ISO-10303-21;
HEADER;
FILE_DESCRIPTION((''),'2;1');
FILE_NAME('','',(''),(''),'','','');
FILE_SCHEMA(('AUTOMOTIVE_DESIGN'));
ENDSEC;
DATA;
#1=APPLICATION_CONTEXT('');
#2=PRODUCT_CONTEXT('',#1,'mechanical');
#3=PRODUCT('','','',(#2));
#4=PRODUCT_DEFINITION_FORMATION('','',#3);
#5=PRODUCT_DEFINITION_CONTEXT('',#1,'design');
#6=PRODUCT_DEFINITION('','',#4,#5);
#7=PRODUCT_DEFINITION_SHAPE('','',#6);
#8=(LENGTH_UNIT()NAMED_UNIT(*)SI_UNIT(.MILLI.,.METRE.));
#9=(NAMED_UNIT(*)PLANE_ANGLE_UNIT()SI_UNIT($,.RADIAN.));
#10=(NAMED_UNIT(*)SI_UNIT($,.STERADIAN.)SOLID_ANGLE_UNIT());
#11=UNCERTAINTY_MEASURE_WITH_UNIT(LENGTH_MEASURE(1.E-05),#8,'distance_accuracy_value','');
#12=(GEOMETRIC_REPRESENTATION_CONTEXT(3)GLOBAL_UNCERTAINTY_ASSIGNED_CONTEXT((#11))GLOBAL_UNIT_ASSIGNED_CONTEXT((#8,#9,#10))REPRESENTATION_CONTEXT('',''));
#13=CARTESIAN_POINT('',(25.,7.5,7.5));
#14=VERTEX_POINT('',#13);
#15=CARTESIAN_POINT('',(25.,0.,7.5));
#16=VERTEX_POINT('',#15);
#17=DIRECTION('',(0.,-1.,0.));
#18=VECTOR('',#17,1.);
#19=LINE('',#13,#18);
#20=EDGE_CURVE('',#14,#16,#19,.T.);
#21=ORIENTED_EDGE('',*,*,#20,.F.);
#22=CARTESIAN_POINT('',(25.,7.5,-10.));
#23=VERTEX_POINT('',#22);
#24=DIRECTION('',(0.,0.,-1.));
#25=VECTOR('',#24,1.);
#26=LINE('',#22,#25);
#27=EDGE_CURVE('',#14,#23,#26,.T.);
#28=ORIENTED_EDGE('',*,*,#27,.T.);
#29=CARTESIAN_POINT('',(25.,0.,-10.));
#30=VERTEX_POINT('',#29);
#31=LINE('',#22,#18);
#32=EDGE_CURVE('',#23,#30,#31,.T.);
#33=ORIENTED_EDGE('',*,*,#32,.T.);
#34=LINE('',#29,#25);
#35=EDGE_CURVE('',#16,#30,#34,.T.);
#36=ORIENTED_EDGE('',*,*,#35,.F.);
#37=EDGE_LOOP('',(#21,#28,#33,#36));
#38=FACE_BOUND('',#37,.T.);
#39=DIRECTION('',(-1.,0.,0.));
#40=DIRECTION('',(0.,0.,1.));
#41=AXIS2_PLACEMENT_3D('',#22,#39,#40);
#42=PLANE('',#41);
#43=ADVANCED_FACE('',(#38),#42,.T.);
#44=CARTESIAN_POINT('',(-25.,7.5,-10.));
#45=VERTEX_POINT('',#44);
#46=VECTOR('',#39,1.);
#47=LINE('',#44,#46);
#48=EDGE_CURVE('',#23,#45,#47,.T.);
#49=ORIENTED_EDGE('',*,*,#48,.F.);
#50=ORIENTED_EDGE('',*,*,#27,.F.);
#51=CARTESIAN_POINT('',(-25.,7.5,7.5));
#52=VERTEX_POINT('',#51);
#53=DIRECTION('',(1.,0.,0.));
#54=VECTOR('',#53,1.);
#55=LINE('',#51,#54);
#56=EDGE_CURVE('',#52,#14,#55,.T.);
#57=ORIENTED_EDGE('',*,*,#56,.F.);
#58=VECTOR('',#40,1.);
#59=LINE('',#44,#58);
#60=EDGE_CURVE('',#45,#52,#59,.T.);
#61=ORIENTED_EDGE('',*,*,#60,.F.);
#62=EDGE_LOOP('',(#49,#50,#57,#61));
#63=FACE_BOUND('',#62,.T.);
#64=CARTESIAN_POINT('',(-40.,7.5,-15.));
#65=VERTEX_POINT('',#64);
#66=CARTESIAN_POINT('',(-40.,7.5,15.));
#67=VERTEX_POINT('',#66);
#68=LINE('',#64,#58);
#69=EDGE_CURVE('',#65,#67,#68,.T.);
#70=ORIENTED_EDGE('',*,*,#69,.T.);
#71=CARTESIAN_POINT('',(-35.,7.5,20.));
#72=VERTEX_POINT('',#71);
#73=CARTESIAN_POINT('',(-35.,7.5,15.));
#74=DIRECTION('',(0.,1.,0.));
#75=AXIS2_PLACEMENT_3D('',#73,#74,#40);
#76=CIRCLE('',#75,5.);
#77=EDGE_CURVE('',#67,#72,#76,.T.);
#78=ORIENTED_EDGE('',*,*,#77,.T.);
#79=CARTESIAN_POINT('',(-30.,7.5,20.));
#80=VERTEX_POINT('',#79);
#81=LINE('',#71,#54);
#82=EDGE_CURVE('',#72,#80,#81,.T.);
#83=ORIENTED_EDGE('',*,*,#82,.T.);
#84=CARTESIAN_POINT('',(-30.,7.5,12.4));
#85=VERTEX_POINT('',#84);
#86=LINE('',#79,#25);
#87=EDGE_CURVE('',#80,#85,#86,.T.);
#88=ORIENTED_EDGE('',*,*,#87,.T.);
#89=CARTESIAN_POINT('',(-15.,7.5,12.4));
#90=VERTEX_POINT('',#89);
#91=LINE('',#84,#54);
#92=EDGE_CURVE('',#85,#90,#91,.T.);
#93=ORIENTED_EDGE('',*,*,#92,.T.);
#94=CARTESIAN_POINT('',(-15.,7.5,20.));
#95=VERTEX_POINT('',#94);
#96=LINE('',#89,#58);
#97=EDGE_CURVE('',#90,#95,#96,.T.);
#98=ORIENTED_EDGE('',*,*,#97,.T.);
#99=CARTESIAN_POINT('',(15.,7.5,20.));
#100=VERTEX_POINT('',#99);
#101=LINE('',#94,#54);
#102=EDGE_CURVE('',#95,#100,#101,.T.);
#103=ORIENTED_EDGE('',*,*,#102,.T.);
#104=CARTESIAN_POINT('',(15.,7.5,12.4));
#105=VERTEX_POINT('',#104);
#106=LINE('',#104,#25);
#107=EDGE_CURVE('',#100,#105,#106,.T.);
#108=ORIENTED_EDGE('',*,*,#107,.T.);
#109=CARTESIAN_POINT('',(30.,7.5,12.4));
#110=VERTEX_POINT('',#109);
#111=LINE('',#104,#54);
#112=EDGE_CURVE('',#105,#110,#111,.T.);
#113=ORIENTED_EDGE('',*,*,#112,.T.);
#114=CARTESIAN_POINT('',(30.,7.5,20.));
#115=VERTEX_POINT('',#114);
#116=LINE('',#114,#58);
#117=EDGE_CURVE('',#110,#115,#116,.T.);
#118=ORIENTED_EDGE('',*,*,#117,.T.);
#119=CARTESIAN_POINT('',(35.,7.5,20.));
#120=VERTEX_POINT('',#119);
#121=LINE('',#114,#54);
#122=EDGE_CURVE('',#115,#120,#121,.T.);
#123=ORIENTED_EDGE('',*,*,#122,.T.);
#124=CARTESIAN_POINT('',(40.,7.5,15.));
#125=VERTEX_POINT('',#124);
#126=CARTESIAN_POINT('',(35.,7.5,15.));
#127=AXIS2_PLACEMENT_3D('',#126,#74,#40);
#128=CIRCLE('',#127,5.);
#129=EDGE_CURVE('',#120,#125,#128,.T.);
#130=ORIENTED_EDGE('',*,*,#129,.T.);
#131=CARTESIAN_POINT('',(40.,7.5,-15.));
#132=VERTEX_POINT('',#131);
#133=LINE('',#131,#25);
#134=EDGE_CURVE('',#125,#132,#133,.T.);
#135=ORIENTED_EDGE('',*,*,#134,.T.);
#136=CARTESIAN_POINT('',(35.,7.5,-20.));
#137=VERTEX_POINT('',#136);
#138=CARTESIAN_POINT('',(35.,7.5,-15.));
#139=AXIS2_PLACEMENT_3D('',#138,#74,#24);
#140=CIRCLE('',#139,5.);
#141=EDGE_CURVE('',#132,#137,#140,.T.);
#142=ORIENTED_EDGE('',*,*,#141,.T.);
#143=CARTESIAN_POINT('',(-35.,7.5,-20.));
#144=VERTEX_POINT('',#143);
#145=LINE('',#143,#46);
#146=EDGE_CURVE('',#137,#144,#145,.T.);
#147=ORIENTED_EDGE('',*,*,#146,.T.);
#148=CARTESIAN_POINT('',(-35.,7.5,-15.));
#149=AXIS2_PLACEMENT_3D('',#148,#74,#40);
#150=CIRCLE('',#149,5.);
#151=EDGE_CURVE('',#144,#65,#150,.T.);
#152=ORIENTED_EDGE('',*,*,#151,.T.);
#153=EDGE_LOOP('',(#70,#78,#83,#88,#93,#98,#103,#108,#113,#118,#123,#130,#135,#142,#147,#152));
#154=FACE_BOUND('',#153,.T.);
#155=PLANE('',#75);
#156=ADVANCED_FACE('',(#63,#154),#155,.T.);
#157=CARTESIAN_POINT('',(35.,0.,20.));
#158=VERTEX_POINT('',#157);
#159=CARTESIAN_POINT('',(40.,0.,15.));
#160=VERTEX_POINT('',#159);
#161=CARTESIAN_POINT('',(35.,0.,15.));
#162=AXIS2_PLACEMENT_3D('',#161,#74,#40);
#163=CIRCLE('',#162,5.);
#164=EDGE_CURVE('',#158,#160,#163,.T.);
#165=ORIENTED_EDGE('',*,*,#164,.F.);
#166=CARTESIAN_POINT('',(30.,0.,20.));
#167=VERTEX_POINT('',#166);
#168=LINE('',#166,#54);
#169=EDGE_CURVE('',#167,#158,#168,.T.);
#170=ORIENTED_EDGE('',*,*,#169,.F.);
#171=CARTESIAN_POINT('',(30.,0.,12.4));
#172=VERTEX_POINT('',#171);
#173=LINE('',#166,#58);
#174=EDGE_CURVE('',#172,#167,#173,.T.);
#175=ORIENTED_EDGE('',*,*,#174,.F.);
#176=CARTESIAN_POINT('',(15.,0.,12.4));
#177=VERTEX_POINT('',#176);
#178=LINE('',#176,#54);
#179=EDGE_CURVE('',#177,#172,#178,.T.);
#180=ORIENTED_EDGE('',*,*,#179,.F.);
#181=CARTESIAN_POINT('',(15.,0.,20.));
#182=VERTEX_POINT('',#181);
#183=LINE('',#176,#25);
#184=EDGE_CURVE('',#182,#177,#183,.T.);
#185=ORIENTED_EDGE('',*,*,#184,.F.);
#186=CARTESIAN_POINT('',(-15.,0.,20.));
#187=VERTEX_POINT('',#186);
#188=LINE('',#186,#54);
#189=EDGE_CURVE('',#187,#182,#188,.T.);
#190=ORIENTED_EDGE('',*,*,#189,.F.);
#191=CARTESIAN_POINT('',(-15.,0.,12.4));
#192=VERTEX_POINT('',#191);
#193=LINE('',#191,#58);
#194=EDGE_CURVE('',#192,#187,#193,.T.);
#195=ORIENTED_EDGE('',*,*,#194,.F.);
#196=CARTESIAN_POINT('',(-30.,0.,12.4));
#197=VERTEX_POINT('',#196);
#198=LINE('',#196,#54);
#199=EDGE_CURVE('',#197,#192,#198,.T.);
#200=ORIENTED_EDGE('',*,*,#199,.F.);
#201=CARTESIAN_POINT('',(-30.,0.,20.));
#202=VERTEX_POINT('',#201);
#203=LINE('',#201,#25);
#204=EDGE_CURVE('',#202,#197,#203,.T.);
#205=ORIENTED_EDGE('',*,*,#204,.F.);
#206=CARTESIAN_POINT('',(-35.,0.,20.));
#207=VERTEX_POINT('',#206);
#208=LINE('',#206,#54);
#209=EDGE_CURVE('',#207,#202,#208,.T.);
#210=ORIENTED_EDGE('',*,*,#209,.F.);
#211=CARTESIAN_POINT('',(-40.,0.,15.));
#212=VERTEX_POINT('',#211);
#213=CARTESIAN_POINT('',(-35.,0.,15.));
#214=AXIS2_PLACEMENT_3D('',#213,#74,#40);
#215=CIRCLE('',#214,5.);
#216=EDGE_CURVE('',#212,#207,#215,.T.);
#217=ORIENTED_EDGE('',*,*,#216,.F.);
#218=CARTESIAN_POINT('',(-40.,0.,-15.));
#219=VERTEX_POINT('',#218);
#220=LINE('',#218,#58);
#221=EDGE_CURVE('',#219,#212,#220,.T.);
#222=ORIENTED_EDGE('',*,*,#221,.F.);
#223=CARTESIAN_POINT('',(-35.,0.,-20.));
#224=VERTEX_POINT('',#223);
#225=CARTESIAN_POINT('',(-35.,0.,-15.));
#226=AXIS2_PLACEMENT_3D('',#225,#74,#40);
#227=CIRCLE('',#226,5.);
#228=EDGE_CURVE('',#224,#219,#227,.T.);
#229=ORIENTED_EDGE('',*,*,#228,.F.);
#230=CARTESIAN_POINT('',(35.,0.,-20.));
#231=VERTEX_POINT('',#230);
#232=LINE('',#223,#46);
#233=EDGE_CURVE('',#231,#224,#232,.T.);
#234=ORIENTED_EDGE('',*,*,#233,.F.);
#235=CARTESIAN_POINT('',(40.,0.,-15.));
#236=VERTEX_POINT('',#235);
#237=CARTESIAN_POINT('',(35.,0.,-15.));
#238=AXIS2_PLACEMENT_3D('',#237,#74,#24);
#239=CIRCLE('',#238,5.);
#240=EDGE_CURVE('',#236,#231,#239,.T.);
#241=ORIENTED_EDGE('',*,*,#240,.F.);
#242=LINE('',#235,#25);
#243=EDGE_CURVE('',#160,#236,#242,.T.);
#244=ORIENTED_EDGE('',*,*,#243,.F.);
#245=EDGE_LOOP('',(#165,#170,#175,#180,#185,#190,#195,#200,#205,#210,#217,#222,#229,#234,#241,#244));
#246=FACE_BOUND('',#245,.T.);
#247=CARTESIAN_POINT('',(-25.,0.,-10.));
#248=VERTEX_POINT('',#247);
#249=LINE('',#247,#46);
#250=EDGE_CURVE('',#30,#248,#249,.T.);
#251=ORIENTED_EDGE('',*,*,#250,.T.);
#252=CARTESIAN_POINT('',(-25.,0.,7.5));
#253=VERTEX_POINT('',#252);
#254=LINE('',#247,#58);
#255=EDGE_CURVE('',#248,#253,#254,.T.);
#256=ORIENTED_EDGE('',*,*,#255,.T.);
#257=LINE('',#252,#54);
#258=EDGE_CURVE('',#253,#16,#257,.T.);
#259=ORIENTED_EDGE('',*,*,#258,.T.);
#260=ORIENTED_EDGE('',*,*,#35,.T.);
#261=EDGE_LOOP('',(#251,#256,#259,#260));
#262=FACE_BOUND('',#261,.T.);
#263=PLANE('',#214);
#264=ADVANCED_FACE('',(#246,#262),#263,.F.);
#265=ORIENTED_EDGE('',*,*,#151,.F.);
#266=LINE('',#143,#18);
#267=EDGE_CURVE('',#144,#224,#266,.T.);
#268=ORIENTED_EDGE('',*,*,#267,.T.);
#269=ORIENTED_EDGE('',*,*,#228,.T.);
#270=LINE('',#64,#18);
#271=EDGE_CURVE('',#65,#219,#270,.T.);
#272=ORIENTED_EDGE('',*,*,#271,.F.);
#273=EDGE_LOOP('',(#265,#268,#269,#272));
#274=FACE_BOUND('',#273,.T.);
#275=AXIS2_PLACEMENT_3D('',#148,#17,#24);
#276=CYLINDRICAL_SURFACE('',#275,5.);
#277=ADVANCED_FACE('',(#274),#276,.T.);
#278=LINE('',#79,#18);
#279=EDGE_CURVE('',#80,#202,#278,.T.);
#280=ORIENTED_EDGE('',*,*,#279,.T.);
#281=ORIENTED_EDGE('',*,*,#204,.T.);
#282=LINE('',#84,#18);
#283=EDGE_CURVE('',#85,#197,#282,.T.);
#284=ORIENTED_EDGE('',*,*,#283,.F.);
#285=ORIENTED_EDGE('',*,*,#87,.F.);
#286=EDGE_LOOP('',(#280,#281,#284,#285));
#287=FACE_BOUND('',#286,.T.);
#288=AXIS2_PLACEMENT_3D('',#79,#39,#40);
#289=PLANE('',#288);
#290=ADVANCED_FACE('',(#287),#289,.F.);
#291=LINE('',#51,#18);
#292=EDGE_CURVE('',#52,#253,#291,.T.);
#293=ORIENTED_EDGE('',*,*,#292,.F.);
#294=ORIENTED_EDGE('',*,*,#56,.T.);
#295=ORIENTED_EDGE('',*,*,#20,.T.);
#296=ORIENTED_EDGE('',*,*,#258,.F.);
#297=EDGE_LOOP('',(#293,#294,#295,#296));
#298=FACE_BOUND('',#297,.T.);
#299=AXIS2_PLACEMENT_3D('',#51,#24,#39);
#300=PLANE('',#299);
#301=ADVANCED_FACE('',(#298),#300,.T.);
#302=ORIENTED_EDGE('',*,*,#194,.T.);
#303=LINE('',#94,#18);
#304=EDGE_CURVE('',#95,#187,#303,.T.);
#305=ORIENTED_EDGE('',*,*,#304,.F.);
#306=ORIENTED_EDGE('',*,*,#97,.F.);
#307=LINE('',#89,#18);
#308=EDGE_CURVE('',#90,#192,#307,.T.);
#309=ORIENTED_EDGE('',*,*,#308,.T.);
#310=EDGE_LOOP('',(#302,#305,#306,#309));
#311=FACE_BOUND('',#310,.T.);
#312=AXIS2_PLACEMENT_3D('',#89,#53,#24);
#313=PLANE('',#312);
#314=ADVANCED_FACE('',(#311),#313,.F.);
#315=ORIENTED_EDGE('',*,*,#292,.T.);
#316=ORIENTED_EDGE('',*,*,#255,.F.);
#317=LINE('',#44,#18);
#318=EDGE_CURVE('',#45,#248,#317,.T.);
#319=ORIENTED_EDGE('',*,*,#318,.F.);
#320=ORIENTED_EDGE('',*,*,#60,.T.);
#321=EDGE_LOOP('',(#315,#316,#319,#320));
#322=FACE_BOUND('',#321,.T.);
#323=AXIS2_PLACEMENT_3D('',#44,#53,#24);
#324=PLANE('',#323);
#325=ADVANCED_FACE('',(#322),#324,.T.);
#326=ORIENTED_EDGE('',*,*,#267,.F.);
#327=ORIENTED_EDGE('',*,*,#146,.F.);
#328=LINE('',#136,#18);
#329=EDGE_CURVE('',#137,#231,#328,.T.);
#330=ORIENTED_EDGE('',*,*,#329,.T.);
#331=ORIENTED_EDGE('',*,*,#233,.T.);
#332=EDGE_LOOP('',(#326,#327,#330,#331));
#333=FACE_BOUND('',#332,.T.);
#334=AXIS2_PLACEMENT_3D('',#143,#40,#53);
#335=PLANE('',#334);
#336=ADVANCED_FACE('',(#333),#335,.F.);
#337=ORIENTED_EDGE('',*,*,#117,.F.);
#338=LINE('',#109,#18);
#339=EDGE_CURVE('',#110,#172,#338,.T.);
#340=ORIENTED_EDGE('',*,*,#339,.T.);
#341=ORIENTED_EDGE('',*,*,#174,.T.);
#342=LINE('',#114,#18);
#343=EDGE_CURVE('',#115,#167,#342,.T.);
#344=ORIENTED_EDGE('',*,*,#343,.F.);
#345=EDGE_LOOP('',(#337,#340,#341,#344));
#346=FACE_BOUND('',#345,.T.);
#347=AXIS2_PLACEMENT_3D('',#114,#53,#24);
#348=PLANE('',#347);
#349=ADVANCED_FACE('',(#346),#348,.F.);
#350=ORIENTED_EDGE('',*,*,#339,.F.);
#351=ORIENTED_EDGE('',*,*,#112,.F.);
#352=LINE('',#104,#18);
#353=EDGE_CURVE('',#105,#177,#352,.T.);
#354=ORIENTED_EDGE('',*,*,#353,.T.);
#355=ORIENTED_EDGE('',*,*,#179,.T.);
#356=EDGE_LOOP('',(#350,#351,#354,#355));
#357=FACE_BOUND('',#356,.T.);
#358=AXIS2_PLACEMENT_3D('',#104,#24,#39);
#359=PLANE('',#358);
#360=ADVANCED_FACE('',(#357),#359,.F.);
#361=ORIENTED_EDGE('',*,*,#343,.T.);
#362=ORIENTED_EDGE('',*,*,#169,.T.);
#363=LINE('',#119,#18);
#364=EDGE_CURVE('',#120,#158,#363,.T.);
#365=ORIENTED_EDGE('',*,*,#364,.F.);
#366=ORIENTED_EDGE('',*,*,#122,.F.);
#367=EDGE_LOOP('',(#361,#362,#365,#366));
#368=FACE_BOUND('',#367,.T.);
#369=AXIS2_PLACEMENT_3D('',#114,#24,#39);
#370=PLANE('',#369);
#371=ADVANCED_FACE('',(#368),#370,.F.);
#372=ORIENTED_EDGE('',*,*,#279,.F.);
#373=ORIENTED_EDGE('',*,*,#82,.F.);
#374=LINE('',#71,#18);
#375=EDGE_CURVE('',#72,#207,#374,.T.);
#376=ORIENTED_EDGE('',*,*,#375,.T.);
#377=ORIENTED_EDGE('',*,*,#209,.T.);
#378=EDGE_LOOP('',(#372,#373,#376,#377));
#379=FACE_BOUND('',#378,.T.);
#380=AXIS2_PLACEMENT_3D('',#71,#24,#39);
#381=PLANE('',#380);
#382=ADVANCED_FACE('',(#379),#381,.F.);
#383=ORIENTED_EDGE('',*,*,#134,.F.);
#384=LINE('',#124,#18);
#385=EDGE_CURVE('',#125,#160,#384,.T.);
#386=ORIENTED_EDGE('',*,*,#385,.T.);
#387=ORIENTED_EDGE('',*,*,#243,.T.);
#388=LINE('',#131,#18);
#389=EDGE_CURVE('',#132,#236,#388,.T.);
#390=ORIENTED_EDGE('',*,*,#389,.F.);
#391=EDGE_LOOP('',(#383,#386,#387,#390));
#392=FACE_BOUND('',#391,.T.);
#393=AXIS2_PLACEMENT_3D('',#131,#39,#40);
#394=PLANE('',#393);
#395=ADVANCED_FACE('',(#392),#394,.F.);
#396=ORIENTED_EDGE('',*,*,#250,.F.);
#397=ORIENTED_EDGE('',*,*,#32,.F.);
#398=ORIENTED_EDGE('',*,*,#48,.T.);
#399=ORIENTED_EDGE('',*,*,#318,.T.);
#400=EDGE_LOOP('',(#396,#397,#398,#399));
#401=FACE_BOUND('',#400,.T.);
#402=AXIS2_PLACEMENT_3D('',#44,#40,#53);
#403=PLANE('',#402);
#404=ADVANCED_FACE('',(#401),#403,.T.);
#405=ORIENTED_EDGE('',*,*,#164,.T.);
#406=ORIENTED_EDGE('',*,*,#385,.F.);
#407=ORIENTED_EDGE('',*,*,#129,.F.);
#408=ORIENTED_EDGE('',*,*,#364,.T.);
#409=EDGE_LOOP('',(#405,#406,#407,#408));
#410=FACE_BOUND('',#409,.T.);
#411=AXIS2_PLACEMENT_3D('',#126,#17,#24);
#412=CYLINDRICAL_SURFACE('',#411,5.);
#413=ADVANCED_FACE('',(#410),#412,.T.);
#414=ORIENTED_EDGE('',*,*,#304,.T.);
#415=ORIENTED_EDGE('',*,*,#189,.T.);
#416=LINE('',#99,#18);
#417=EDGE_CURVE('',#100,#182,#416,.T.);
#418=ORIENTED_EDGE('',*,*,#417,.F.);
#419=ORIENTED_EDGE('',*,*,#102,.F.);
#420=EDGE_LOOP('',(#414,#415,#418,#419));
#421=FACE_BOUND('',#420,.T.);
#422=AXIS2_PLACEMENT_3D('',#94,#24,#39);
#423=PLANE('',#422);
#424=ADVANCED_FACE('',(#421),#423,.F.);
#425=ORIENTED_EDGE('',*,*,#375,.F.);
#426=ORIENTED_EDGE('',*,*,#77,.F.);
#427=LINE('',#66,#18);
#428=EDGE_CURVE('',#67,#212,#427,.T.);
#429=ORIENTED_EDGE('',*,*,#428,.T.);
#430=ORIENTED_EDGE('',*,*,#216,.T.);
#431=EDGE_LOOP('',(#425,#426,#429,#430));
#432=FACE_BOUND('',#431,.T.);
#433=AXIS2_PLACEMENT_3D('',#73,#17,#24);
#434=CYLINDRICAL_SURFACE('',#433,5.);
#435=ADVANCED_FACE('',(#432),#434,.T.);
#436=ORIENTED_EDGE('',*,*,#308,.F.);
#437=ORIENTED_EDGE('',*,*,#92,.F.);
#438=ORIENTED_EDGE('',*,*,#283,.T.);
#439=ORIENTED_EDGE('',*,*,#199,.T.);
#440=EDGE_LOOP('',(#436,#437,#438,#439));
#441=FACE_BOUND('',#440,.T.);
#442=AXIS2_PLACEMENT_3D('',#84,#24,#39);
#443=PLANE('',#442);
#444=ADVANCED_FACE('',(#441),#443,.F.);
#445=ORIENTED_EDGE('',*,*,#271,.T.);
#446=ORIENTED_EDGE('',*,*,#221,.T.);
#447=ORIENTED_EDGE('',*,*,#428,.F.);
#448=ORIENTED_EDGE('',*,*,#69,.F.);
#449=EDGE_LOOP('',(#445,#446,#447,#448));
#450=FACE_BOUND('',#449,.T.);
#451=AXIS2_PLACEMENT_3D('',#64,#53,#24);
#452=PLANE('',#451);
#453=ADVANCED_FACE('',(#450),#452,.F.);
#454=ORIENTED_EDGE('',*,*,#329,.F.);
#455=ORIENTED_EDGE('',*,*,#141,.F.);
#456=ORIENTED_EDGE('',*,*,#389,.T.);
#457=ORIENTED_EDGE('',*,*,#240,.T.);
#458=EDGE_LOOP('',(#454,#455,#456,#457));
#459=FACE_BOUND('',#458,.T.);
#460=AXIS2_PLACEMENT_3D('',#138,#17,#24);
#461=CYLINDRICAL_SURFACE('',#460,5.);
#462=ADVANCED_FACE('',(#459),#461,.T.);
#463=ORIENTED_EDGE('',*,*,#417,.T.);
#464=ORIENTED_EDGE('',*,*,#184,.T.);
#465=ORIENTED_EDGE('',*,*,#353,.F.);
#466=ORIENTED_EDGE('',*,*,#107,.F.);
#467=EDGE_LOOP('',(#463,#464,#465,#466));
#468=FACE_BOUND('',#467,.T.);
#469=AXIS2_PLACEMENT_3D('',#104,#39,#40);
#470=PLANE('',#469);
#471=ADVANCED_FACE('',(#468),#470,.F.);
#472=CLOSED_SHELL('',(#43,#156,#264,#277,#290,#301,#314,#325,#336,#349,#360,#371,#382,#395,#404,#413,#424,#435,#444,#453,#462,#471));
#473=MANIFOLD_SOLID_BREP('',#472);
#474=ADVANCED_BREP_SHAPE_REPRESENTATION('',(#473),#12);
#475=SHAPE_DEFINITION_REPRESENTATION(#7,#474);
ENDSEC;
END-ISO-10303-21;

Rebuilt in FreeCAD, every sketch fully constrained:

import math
import FreeCAD as App
import Part
import Sketcher
Q = App.Units.Quantity

doc = App.newDocument("Part")
body = doc.addObject("PartDesign::Body", "Body")

sketch1 = doc.addObject("Sketcher::SketchObject", "Sketch")
body.addObject(sketch1)
sketch1.AttachmentSupport = (doc.XZ_Plane, [""])
sketch1.MapMode = "FlatFace"
sketch1.addGeometry([
    Part.LineSegment(App.Vector(15, 20, 0), App.Vector(15, 12, 0)),
    Part.LineSegment(App.Vector(15, 12, 0), App.Vector(30, 12, 0)),
    Part.LineSegment(App.Vector(30, 12, 0), App.Vector(30, 20, 0)),
    Part.LineSegment(App.Vector(30, 20, 0), App.Vector(35, 20, 0)),
    Part.ArcOfCircle(Part.Circle(App.Vector(35, 15, 0), App.Vector(0, 0, 1), 5), math.radians(0), math.radians(90)),
    Part.LineSegment(App.Vector(40, 15, 0), App.Vector(40, -15, 0)),
    Part.ArcOfCircle(Part.Circle(App.Vector(35, -15, 0), App.Vector(0, 0, 1), 5), math.radians(-90), math.radians(0)),
    Part.LineSegment(App.Vector(35, -20, 0), App.Vector(-35, -20, 0)),
    Part.ArcOfCircle(Part.Circle(App.Vector(-35, -15, 0), App.Vector(0, 0, 1), 5), math.radians(180), math.radians(270)),
    Part.LineSegment(App.Vector(-40, -15, 0), App.Vector(-40, 15, 0)),
    Part.ArcOfCircle(Part.Circle(App.Vector(-35, 15, 0), App.Vector(0, 0, 1), 5), math.radians(90), math.radians(180)),
    Part.LineSegment(App.Vector(-35, 20, 0), App.Vector(-30, 20, 0)),
    Part.LineSegment(App.Vector(-30, 20, 0), App.Vector(-30, 12, 0)),
    Part.LineSegment(App.Vector(-30, 12, 0), App.Vector(-15, 12, 0)),
    Part.LineSegment(App.Vector(-15, 12, 0), App.Vector(-15, 20, 0)),
    Part.LineSegment(App.Vector(-15, 20, 0), App.Vector(15, 20, 0)),
    Part.LineSegment(App.Vector(25, 8, 0), App.Vector(-25, 8, 0)),
    Part.LineSegment(App.Vector(-25, 8, 0), App.Vector(-25, -10, 0)),
    Part.LineSegment(App.Vector(-25, -10, 0), App.Vector(25, -10, 0)),
    Part.LineSegment(App.Vector(25, -10, 0), App.Vector(25, 8, 0)),
], False)
sketch1.addConstraint([
    Sketcher.Constraint("Coincident", 0, 2, 1, 1),
    Sketcher.Constraint("Coincident", 1, 2, 2, 1),
    Sketcher.Constraint("Coincident", 2, 2, 3, 1),
    Sketcher.Constraint("Tangent", 3, 2, 4, 2),
    Sketcher.Constraint("Tangent", 4, 1, 5, 1),
    Sketcher.Constraint("Tangent", 5, 2, 6, 2),
    Sketcher.Constraint("Tangent", 6, 1, 7, 1),
    Sketcher.Constraint("Tangent", 7, 2, 8, 2),
    Sketcher.Constraint("Tangent", 8, 1, 9, 1),
    Sketcher.Constraint("Tangent", 9, 2, 10, 2),
    Sketcher.Constraint("Tangent", 10, 1, 11, 1),
    Sketcher.Constraint("Coincident", 11, 2, 12, 1),
    Sketcher.Constraint("Coincident", 12, 2, 13, 1),
    Sketcher.Constraint("Coincident", 13, 2, 14, 1),
    Sketcher.Constraint("Coincident", 14, 2, 15, 1),
    Sketcher.Constraint("Coincident", 15, 2, 0, 1),
    Sketcher.Constraint("Coincident", 16, 2, 17, 1),
    Sketcher.Constraint("Coincident", 17, 2, 18, 1),
    Sketcher.Constraint("Coincident", 18, 2, 19, 1),
    Sketcher.Constraint("Coincident", 19, 2, 16, 1),
    Sketcher.Constraint("Vertical", 0),
    Sketcher.Constraint("Horizontal", 1),
    Sketcher.Constraint("Vertical", 2),
    Sketcher.Constraint("Horizontal", 3),
    Sketcher.Constraint("Vertical", 5),
    Sketcher.Constraint("Horizontal", 7),
    Sketcher.Constraint("Vertical", 9),
    Sketcher.Constraint("Horizontal", 11),
    Sketcher.Constraint("Vertical", 12),
    Sketcher.Constraint("Horizontal", 13),
    Sketcher.Constraint("Vertical", 14),
    Sketcher.Constraint("Horizontal", 15),
    Sketcher.Constraint("Horizontal", 16),
    Sketcher.Constraint("Vertical", 17),
    Sketcher.Constraint("Horizontal", 18),
    Sketcher.Constraint("Vertical", 19),
    Sketcher.Constraint("Equal", 4, 6),
    Sketcher.Constraint("Equal", 6, 8),
    Sketcher.Constraint("Equal", 8, 10),
    Sketcher.Constraint("Symmetric", 4, 3, 8, 3, -1, 1),
    Sketcher.Constraint("Symmetric", 2, 2, 11, 2, -2),
    Sketcher.Constraint("Symmetric", 0, 2, 13, 2, -2),
    Sketcher.Constraint("Horizontal", 11, 2, 14, 2),
    Sketcher.Constraint("Equal", 15, 5),
    Sketcher.Constraint("Radius", 4, Q("5 mm")),
    Sketcher.Constraint("DistanceX", 1, 1, 1, 2, Q("15 mm")),
    Sketcher.Constraint("DistanceX", 3, 1, 3, 2, Q("5 mm")),
    Sketcher.Constraint("DistanceX", 7, 2, 7, 1, Q("70 mm")),
    Sketcher.Constraint("DistanceX", 16, 2, 16, 1, Q("50 mm")),
    Sketcher.Constraint("DistanceY", 0, 2, 0, 1, Q("7.6 mm")),
    Sketcher.Constraint("DistanceY", 17, 2, 17, 1, Q("17.5 mm")),
    Sketcher.Constraint("DistanceX", 16, 2, -1, 1, Q("25 mm")),
    Sketcher.Constraint("DistanceY", 17, 2, -1, 1, Q("10 mm")),
])
pad1 = doc.addObject("PartDesign::Pad", "Pad")
body.addObject(pad1)
pad1.Profile = sketch1
pad1.Length = 7.5
pad1.Reversed = True

doc.recompute()
